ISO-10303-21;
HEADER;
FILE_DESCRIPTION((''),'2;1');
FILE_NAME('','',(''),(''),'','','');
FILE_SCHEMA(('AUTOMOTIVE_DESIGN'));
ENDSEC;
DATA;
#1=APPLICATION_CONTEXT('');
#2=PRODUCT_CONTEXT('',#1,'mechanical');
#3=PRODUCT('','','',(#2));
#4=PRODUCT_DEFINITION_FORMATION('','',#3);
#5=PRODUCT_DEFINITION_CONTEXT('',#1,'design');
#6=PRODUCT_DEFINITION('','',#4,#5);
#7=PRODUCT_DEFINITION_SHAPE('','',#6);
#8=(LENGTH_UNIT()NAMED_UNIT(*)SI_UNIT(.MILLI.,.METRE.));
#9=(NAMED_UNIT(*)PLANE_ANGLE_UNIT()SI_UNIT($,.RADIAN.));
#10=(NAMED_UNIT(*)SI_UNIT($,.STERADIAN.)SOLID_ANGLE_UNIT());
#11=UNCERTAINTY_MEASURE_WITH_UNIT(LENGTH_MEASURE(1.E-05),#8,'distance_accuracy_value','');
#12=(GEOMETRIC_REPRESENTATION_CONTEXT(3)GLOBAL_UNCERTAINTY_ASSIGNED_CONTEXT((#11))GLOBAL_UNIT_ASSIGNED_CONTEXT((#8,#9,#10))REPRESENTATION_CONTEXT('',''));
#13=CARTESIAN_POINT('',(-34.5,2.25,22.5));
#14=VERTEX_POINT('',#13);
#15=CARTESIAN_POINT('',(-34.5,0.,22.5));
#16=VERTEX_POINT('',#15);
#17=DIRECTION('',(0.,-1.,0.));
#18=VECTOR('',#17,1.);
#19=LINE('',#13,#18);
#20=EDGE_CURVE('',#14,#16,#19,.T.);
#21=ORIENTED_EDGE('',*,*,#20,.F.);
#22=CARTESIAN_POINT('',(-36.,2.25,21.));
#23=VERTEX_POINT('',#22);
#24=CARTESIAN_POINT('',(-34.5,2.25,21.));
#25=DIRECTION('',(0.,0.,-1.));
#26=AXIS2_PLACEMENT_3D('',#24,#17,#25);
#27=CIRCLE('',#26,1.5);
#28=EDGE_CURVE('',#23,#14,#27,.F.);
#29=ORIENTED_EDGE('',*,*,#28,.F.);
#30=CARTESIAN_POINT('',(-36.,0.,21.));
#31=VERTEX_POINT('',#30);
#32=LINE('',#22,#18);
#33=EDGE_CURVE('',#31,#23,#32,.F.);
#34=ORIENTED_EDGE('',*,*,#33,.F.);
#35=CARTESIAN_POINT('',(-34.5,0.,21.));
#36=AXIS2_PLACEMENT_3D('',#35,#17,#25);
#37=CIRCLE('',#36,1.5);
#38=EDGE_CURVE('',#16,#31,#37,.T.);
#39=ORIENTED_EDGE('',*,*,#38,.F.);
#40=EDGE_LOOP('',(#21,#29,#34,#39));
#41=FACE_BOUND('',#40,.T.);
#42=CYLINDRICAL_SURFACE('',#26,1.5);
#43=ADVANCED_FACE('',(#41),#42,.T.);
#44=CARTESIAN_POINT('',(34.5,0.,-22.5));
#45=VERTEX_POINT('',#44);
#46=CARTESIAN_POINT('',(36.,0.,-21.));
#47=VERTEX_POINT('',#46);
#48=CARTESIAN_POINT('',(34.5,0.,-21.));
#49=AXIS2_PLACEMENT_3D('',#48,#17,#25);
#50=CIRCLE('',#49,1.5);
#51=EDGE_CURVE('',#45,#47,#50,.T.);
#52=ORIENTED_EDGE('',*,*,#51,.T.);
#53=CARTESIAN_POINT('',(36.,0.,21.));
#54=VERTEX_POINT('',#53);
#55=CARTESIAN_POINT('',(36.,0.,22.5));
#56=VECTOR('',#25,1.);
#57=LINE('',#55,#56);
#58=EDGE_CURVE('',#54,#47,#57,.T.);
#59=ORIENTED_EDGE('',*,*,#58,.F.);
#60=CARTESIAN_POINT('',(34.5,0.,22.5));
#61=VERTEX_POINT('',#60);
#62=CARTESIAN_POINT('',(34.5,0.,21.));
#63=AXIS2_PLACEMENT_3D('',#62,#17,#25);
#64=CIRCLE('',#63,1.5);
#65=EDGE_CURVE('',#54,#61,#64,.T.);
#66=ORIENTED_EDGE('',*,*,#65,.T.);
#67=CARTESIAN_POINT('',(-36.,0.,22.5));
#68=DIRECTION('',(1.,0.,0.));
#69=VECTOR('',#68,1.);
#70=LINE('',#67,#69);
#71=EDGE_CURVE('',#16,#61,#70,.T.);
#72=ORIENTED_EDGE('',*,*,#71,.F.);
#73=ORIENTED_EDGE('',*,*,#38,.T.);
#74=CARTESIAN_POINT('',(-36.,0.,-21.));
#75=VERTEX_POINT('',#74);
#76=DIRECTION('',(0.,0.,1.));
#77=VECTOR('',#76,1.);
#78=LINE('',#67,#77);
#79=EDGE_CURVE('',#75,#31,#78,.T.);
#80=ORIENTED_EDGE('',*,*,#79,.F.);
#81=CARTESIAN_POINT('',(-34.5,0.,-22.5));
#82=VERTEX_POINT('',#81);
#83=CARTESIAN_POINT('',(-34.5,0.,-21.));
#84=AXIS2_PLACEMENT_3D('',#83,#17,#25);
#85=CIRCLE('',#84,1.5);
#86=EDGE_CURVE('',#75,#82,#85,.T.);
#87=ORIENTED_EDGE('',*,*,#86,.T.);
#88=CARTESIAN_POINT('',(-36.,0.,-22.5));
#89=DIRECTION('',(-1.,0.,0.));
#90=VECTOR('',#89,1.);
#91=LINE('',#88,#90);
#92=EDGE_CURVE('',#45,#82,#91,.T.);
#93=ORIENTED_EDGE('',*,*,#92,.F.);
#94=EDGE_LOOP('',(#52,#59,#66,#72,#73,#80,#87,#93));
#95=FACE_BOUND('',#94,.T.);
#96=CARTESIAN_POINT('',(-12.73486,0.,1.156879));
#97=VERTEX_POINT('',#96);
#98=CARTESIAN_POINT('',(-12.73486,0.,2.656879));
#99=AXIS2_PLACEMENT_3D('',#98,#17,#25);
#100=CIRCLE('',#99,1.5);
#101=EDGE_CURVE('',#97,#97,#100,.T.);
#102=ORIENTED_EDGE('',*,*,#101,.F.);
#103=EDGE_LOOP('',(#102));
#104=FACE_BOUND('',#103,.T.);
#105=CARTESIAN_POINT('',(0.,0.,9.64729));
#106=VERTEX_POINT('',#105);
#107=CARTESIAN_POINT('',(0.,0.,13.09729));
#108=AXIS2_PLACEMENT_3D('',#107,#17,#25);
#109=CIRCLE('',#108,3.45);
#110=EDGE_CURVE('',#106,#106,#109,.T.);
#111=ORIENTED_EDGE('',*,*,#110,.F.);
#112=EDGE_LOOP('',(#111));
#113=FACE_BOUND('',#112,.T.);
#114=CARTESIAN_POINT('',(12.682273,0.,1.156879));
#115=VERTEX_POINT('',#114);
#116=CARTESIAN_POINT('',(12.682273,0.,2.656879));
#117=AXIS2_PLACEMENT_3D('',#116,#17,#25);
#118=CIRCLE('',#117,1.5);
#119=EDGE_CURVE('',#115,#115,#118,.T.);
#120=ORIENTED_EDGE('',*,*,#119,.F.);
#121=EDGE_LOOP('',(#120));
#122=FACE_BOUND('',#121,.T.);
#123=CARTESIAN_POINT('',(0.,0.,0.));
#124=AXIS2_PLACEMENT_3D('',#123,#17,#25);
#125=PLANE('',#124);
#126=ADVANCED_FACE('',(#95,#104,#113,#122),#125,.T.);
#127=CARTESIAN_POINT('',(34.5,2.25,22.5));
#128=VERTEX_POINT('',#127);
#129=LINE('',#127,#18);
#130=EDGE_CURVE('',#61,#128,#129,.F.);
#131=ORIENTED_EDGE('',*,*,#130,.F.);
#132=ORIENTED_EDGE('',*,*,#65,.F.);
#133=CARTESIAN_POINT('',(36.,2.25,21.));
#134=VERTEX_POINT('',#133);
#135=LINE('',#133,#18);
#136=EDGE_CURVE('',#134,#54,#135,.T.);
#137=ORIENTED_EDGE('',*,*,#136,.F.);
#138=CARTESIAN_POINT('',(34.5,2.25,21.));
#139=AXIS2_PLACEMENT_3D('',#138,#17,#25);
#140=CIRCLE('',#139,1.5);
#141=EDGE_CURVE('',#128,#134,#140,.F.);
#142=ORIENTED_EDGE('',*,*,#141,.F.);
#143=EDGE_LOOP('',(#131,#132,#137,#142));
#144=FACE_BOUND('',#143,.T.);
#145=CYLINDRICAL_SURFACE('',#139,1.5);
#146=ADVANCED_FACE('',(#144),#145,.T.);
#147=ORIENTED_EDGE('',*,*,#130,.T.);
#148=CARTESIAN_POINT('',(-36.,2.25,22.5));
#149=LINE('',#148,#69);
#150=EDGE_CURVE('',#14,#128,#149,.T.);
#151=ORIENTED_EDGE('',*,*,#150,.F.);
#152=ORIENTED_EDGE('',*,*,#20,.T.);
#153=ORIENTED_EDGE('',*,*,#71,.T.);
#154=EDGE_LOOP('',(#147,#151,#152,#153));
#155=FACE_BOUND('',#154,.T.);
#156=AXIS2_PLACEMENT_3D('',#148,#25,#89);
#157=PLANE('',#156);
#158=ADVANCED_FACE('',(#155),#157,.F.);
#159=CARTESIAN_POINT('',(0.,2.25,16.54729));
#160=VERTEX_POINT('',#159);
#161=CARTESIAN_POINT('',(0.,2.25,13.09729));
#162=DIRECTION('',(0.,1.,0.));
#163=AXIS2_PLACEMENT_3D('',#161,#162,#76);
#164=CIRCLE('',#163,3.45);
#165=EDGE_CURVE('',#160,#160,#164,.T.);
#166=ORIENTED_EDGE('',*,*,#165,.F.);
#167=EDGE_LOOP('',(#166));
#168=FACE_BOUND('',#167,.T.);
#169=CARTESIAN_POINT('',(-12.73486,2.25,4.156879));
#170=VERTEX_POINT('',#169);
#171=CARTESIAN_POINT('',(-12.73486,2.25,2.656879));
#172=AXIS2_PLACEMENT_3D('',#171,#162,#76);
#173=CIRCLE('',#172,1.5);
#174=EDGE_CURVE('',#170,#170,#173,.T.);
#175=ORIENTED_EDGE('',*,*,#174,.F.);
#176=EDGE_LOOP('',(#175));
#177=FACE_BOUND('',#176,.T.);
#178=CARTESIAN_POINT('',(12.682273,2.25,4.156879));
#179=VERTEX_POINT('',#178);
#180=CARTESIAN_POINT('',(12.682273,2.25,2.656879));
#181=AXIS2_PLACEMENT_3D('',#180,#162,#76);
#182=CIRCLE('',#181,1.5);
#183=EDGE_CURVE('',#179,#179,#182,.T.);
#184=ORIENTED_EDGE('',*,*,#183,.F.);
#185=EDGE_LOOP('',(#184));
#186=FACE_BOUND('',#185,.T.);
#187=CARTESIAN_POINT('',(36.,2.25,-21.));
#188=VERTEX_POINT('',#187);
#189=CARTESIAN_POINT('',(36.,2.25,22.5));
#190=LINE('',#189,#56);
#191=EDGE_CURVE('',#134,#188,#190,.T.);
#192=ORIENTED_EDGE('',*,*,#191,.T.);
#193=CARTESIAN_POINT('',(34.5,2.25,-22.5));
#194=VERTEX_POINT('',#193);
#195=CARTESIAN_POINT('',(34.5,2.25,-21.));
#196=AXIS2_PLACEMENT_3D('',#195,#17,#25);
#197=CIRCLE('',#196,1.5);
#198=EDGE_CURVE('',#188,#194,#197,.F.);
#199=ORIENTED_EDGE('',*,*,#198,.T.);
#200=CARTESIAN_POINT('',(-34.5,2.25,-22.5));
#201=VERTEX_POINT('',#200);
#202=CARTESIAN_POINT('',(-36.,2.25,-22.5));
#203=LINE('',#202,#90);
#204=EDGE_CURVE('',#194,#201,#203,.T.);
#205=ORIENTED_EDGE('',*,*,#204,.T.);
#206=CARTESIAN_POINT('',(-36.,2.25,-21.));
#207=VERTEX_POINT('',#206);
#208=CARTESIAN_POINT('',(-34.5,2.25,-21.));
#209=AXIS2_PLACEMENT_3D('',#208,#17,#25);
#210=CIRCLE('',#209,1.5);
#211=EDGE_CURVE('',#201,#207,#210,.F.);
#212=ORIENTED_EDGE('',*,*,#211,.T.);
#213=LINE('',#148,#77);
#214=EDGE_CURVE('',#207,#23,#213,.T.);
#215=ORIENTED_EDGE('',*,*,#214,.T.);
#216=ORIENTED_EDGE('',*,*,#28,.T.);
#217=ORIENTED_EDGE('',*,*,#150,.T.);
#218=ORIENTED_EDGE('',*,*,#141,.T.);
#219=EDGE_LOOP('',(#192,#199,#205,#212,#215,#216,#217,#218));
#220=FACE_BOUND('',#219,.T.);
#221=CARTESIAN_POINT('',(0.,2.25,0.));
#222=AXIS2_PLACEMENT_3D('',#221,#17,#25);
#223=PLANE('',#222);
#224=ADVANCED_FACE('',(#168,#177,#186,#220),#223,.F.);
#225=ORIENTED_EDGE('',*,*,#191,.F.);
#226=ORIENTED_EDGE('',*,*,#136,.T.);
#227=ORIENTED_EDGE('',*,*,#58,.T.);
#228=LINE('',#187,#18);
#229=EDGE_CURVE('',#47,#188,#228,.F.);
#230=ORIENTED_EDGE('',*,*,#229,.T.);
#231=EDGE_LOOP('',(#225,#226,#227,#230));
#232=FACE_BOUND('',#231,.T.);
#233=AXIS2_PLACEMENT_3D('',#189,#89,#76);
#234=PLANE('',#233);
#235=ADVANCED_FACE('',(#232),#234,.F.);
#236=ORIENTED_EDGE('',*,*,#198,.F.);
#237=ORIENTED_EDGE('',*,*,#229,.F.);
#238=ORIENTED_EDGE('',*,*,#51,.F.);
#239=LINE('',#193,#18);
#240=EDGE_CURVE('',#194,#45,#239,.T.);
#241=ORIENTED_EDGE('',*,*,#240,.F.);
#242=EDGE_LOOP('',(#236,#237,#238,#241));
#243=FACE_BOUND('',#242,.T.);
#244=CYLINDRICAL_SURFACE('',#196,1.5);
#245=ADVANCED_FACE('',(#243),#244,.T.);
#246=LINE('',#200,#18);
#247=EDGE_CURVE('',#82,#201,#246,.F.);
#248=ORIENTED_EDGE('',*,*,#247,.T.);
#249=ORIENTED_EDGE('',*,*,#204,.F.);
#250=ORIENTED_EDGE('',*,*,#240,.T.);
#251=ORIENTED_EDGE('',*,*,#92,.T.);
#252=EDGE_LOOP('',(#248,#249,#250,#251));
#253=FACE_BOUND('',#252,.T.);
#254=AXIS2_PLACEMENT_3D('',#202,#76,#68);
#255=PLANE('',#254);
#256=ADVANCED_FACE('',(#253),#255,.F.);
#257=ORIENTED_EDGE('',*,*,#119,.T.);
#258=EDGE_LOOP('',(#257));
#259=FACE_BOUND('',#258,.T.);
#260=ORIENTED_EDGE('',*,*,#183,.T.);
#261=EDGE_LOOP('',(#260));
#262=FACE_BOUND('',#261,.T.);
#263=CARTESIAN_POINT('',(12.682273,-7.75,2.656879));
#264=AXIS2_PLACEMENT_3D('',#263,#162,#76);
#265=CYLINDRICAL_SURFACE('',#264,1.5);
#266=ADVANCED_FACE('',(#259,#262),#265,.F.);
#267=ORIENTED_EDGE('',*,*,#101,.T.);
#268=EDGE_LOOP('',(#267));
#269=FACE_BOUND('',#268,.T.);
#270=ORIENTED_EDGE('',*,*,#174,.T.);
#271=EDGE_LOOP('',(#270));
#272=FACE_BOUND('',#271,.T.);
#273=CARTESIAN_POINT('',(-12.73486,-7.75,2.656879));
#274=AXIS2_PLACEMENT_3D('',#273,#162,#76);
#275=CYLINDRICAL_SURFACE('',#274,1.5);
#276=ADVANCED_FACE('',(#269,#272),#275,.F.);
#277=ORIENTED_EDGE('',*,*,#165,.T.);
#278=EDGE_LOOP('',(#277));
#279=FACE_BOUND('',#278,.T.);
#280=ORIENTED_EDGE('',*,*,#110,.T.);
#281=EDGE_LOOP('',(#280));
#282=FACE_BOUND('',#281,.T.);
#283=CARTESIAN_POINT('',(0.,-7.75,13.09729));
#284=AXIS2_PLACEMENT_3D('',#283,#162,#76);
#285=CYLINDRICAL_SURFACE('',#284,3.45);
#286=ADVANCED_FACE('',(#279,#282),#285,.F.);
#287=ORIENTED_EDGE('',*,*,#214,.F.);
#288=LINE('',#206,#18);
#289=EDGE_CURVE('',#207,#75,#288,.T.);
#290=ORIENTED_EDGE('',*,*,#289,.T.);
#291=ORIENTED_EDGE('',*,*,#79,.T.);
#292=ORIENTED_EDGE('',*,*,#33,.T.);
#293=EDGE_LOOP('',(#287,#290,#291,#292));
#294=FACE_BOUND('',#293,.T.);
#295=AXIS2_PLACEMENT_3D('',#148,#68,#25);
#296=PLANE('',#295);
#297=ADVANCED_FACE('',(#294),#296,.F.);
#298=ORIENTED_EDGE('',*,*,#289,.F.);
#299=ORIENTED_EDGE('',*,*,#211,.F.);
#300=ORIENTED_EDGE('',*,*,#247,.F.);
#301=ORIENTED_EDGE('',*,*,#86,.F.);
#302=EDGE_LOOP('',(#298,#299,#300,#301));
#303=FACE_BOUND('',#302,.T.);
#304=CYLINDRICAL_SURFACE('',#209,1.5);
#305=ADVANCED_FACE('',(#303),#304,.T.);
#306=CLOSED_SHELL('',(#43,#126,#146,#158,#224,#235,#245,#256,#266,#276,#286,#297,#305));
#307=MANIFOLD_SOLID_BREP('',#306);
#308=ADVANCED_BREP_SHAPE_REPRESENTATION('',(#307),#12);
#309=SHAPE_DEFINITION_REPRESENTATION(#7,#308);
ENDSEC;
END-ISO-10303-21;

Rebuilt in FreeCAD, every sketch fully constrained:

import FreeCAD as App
import Part
import Sketcher
Q = App.Units.Quantity


def edges_at(feature, points):
    """Names of the edges that pass closest to the given points."""
    edges = feature.Shape.Edges
    near = lambda p: min(range(len(edges)), key=lambda i: edges[i].distToShape(Part.Vertex(*p))[0])
    return sorted({f"Edge{near(p) + 1}" for p in points})


def add_polygon(sketch, points):
    """Adds a closed chain of lines whose ends are joined by coincident constraints."""
    first, n = sketch.GeometryCount, len(points)
    for a, b in zip(points, points[1:] + points[:1]):
        sketch.addGeometry(Part.LineSegment(App.Vector(*a, 0), App.Vector(*b, 0)), False)
    for i in range(n):
        sketch.addConstraint(Sketcher.Constraint("Coincident", first + i, 2, first + (i + 1) % n, 1))

doc = App.newDocument("Part")
body = doc.addObject("PartDesign::Body", "Body")

sketch1 = body.newObject("Sketcher::SketchObject", "Sketch")
sketch1.AttachmentSupport = (doc.getObject("XZ_Plane"), [""])
sketch1.MapMode = "FlatFace"
add_polygon(sketch1, [(-36, -22.5), (-36, 22.5), (36, 22.5), (36, -22.5)])
sketch1.addConstraint(Sketcher.Constraint("Vertical", 0))
sketch1.addConstraint(Sketcher.Constraint("Horizontal", 1))
sketch1.addConstraint(Sketcher.Constraint("Vertical", 2))
sketch1.addConstraint(Sketcher.Constraint("Horizontal", 3))
sketch1.addConstraint(Sketcher.Constraint("Symmetric", 0, 2, 2, 2, -1, 1))
sketch1.addConstraint(Sketcher.Constraint("DistanceX", 1, 1, 1, 2, Q("72 mm")))
sketch1.addConstraint(Sketcher.Constraint("DistanceY", 0, 1, 0, 2, Q("45 mm")))
pad1 = body.newObject("PartDesign::Pad", "Pad")
pad1.Profile = sketch1
pad1.Length = 2.25
pad1.Reversed = True
doc.recompute()

fillet = body.newObject("PartDesign::Fillet", "Fillet")
fillet.Base = (pad1, edges_at(pad1, [(-36, 1.125, -22.5)]))
fillet.Radius = 1.5
doc.recompute()

fillet2 = body.newObject("PartDesign::Fillet", "Fillet001")
fillet2.Base = (fillet, edges_at(fillet, [(36, 1.125, 22.5), (-36, 1.125, 22.5), (36, 1.125, -22.5)]))
fillet2.Radius = 1.5

sketch2 = body.newObject("Sketcher::SketchObject", "Sketch001")
sketch2.AttachmentSupport = (doc.getObject("XZ_Plane"), [""])
sketch2.MapMode = "FlatFace"
sketch2.AttachmentOffset = App.Placement(App.Vector(0, 0, -2.25), App.Rotation())
sketch2.addGeometry(Part.Circle(App.Vector(0, 13.09729, 0), App.Vector(0, 0, 1), 3.45), False)
sketch2.addConstraint(Sketcher.Constraint("PointOnObject", 0, 3, -2))
sketch2.addConstraint(Sketcher.Constraint("Diameter", 0, Q("6.9 mm")))
sketch2.addConstraint(Sketcher.Constraint("DistanceY", -1, 1, 0, 3, Q("13.09729 mm")))
pocket1 = body.newObject("PartDesign::Pocket", "Pocket")
pocket1.Profile = sketch2
pocket1.Length = 10
pocket1.Reversed = True

sketch3 = body.newObject("Sketcher::SketchObject", "Sketch002")
sketch3.AttachmentSupport = (doc.getObject("XZ_Plane"), [""])
sketch3.MapMode = "FlatFace"
sketch3.AttachmentOffset = App.Placement(App.Vector(0, 0, -2.25), App.Rotation())
sketch3.addGeometry(Part.Circle(App.Vector(-12.73486, 2.656879, 0), App.Vector(0, 0, 1), 1.5), False)
sketch3.addGeometry(Part.Circle(App.Vector(12.682273, 2.656879, 0), App.Vector(0, 0, 1), 1.5), False)
sketch3.addConstraint(Sketcher.Constraint("Equal", 0, 1))
sketch3.addConstraint(Sketcher.Constraint("Horizontal", 0, 3, 1, 3))
sketch3.addConstraint(Sketcher.Constraint("Diameter", 0, Q("3 mm")))
sketch3.addConstraint(Sketcher.Constraint("DistanceX", 0, 3, -1, 1, Q("12.73486 mm")))
sketch3.addConstraint(Sketcher.Constraint("DistanceY", -1, 1, 0, 3, Q("2.656879 mm")))
sketch3.addConstraint(Sketcher.Constraint("DistanceX", -1, 1, 1, 3, Q("12.682273 mm")))
pocket2 = body.newObject("PartDesign::Pocket", "Pocket001")
pocket2.Profile = sketch3
pocket2.Length = 10
pocket2.Reversed = True

doc.recompute()
